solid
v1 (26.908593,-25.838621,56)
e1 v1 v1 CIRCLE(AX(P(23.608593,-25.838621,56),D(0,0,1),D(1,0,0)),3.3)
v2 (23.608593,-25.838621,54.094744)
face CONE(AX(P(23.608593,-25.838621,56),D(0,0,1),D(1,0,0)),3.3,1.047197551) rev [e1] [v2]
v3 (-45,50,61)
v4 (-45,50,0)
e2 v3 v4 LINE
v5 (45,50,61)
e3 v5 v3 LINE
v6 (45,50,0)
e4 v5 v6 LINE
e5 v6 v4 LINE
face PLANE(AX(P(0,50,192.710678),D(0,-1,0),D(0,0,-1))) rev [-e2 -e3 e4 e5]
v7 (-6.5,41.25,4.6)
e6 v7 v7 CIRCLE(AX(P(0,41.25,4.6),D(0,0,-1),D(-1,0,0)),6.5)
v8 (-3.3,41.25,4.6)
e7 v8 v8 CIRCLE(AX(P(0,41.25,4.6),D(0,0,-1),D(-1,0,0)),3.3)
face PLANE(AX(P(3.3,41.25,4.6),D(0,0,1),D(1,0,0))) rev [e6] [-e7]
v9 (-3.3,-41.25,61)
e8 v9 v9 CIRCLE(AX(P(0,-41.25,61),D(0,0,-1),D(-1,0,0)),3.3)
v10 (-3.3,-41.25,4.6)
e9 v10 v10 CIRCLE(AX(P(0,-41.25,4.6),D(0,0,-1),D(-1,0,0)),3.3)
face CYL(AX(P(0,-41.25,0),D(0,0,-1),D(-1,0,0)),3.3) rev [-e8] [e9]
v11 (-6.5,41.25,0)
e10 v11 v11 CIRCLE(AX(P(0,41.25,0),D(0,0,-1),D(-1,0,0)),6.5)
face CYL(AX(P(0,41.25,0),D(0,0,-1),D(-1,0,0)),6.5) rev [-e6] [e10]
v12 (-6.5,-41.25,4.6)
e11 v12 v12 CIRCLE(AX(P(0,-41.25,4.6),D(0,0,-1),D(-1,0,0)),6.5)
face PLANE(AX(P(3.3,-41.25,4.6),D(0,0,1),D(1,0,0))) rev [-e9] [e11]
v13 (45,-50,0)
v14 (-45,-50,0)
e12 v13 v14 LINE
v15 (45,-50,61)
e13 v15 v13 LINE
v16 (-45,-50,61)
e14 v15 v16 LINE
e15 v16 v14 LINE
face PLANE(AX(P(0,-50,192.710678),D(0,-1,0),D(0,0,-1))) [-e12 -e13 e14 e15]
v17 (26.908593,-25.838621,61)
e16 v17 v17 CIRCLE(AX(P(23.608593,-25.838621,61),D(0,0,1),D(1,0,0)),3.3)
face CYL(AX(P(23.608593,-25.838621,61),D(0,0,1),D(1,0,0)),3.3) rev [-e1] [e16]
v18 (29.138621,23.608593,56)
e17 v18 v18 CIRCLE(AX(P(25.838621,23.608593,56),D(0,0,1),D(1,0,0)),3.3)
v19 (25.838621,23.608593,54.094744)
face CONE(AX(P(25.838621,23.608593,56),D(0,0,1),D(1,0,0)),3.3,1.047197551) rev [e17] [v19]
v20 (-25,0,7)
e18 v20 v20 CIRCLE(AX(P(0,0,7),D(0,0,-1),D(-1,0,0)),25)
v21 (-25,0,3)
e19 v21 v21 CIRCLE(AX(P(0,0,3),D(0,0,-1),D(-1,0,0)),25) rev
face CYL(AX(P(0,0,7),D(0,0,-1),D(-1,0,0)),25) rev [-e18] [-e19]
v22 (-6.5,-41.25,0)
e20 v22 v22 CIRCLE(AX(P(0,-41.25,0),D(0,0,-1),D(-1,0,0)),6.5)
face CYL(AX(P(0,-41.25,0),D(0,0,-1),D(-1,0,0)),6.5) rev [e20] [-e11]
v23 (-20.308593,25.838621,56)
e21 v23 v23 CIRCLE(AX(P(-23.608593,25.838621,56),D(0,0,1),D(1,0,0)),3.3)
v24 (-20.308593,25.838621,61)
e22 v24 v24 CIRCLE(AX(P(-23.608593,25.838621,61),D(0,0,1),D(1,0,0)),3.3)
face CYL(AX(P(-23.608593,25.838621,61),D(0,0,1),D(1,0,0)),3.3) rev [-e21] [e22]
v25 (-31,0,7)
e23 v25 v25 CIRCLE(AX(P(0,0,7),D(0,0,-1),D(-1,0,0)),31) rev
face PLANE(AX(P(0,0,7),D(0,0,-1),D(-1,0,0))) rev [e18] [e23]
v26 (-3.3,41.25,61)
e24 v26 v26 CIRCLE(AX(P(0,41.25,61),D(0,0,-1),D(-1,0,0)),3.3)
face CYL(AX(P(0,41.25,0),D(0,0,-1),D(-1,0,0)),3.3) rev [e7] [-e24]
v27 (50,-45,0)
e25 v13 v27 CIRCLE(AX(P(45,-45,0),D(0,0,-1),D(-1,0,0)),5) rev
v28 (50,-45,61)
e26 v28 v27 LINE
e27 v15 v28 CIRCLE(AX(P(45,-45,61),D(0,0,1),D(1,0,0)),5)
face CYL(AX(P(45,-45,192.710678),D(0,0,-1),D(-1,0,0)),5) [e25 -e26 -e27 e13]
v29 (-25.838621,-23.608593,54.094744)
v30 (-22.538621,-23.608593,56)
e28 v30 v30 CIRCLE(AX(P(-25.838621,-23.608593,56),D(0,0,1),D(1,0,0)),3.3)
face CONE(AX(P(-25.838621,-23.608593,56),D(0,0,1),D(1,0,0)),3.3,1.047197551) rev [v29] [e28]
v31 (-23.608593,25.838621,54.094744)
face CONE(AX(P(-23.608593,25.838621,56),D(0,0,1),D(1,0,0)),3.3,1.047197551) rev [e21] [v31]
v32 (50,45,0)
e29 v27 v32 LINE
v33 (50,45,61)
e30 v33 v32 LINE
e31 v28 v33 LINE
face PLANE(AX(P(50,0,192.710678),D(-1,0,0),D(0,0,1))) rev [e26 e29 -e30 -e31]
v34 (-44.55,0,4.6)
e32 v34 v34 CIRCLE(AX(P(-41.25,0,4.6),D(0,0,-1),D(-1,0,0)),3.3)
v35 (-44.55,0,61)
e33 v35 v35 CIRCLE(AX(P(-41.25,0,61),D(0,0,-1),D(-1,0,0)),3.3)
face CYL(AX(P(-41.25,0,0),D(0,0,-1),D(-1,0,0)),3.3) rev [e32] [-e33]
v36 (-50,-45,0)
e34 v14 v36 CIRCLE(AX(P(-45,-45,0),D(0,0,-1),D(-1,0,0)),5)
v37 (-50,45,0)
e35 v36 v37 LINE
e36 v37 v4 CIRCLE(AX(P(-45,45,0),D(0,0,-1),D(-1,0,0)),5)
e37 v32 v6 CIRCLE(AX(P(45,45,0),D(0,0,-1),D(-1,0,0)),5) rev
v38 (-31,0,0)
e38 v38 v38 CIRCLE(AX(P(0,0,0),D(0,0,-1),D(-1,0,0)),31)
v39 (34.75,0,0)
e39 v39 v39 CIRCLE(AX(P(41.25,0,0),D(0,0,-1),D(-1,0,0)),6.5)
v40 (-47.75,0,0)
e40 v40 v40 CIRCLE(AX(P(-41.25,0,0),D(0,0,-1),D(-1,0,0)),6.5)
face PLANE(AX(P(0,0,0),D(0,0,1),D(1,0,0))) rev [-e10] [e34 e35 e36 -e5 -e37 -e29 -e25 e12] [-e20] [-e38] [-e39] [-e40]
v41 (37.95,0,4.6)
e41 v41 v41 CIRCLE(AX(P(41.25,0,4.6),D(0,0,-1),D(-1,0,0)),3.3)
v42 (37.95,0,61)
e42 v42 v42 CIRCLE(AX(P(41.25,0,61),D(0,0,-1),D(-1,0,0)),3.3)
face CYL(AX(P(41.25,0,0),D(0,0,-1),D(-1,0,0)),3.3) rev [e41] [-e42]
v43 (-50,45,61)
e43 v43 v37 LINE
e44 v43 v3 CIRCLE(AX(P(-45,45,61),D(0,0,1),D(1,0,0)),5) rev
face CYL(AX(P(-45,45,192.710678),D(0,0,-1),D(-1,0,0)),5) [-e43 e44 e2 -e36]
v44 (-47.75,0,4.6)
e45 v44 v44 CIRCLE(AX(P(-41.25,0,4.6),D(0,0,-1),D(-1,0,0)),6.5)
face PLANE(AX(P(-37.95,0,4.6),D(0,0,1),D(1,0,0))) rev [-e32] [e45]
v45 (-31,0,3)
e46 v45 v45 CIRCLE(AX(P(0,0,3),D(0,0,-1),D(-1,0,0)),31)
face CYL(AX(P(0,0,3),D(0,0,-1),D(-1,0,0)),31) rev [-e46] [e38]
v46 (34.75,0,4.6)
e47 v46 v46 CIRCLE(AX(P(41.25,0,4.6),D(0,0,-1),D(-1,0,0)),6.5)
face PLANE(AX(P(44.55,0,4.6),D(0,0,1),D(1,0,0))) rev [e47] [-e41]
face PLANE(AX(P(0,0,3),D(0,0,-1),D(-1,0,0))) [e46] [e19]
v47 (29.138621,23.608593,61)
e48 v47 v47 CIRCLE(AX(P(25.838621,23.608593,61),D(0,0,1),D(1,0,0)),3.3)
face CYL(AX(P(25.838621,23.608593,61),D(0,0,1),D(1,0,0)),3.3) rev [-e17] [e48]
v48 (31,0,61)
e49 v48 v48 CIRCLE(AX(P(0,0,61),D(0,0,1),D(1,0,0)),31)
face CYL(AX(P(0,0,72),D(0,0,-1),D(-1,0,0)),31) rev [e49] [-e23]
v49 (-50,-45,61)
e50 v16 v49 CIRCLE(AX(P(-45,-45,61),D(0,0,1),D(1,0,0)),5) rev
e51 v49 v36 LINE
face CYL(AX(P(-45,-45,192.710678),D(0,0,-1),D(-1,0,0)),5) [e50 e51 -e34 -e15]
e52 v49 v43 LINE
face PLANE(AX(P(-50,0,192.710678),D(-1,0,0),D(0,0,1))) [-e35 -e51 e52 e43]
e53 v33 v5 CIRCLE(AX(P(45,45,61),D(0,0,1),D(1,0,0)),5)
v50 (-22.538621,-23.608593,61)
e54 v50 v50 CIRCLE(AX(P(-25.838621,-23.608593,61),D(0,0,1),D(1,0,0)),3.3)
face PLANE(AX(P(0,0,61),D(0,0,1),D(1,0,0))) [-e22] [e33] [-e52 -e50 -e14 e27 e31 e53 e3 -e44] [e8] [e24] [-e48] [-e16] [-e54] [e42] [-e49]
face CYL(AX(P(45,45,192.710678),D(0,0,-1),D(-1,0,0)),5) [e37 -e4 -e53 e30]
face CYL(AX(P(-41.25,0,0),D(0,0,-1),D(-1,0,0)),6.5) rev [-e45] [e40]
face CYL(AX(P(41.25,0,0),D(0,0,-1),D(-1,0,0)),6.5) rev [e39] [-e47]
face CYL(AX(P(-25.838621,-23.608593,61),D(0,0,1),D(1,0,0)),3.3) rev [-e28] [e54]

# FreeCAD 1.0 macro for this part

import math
import FreeCAD as App
import Part
import Sketcher

V = App.Vector

doc = App.newDocument("Part")
body = doc.addObject("PartDesign::Body", "Body")

# Sketch on XY plane
sketch1 = body.newObject("Sketcher::SketchObject", "Sketch")
sketch1.AttachmentSupport = (doc.getObject("XY_Plane"), [""])
sketch1.MapMode = "FlatFace"
sketch1.addGeometry(Part.Circle(V(0, 0, 0), V(0, 0, 1), 50), False)
sketch1.addConstraint(Sketcher.Constraint("Coincident", 0, 3, -1, 1))
sketch1.addConstraint(Sketcher.Constraint("Diameter", 0, 100.0))
pad1 = body.newObject("PartDesign::Pad", "Pad")
pad1.Profile = sketch1
pad1.Length = 61

# Sketch on XY plane
sketch2 = body.newObject("Sketcher::SketchObject", "Sketch001")
sketch2.AttachmentSupport = (doc.getObject("XY_Plane"), [""])
sketch2.MapMode = "FlatFace"
sketch2.addGeometry(Part.Circle(V(0, 0, 0), V(0, 0, 1), 31), False)
sketch2.addConstraint(Sketcher.Constraint("Coincident", 0, 3, -1, 1))
sketch2.addConstraint(Sketcher.Constraint("Diameter", 0, 62.0))
pocket1 = body.newObject("PartDesign::Pocket", "Pocket")
pocket1.Profile = sketch2
pocket1.Length = 72
pocket1.Reversed = True

# Sketch on XY plane
sketch3 = body.newObject("Sketcher::SketchObject", "Sketch002")
sketch3.AttachmentSupport = (doc.getObject("XY_Plane"), [""])
sketch3.MapMode = "FlatFace"
sketch3.addGeometry(Part.Circle(V(-41.25, 0, 0), V(0, 0, 1), 3.3), False)
sketch3.addGeometry(Part.Circle(V(0, 41.25, 0), V(0, 0, 1), 3.3), False)
sketch3.addGeometry(Part.Circle(V(41.25, 0, 0), V(0, 0, 1), 3.3), False)
sketch3.addGeometry(Part.Circle(V(0, -41.25, 0), V(0, 0, 1), 3.3), False)
sketch3.addConstraint(Sketcher.Constraint("Equal", 0, 1))
sketch3.addConstraint(Sketcher.Constraint("Equal", 1, 2))
sketch3.addConstraint(Sketcher.Constraint("Equal", 2, 3))
sketch3.addConstraint(Sketcher.Constraint("Symmetric", 0, 3, 2, 3, -1, 1))
sketch3.addConstraint(Sketcher.Constraint("Symmetric", 1, 3, 3, 3, -1, 1))
sketch3.addConstraint(Sketcher.Constraint("PointOnObject", 0, 3, -1))
sketch3.addConstraint(Sketcher.Constraint("PointOnObject", 1, 3, -2))
sketch3.addConstraint(Sketcher.Constraint("Diameter", 0, 6.6))
sketch3.addConstraint(Sketcher.Constraint("DistanceX", 0, 3, 2, 3, 82.5))
sketch3.addConstraint(Sketcher.Constraint("DistanceY", 3, 3, 1, 3, 82.5))
doc.recompute()
hole = body.newObject("PartDesign::Hole", "Hole")
hole.Profile = sketch3
hole.ThreadType = "None"
hole.Diameter = 6.6
hole.DepthType = "ThroughAll"
hole.HoleCutType = "Counterbore"
hole.HoleCutDiameter = 13
hole.HoleCutDepth = 4.6
hole.Reversed = True

# Sketch on XY plane
sketch4 = body.newObject("Sketcher::SketchObject", "Sketch003")
sketch4.AttachmentSupport = (doc.getObject("XY_Plane"), [""])
sketch4.MapMode = "FlatFace"
sketch4.AttachmentOffset = App.Placement(V(0, 0, 61), App.Rotation())
sketch4.addGeometry(Part.Circle(V(-23.608593, 25.838621, 0), V(0, 0, 1), 3.3), False)
sketch4.addGeometry(Part.Circle(V(-25.838621, -23.608593, 0), V(0, 0, 1), 3.3), False)
sketch4.addGeometry(Part.Circle(V(23.608593, -25.838621, 0), V(0, 0, 1), 3.3), False)
sketch4.addGeometry(Part.Circle(V(25.838621, 23.608593, 0), V(0, 0, 1), 3.3), False)
sketch4.addConstraint(Sketcher.Constraint("Equal", 0, 1))
sketch4.addConstraint(Sketcher.Constraint("Equal", 1, 2))
sketch4.addConstraint(Sketcher.Constraint("Equal", 2, 3))
sketch4.addConstraint(Sketcher.Constraint("Symmetric", 0, 3, 2, 3, -1, 1))
sketch4.addConstraint(Sketcher.Constraint("Symmetric", 1, 3, 3, 3, -1, 1))
sketch4.addConstraint(Sketcher.Constraint("Diameter", 0, 6.6))
sketch4.addConstraint(Sketcher.Constraint("DistanceY", -1, 1, 0, 3, 25.838621))
sketch4.addConstraint(Sketcher.Constraint("DistanceX", 1, 3, -1, 1, 25.838621))
sketch4.addConstraint(Sketcher.Constraint("DistanceX", 1, 3, 0, 3, 2.230028))
sketch4.addConstraint(Sketcher.Constraint("DistanceY", 2, 3, 1, 3, 2.230028))
doc.recompute()
hole2 = body.newObject("PartDesign::Hole", "Hole001")
hole2.Profile = sketch4
hole2.ThreadType = "None"
hole2.Diameter = 6.6
hole2.DepthType = "Dimension"
hole2.Depth = 5
hole2.DrillPoint = "Angled"
hole2.DrillPointAngle = 120

# Sketch on XY plane
sketch5 = body.newObject("Sketcher::SketchObject", "Sketch004")
sketch5.AttachmentSupport = (doc.getObject("XY_Plane"), [""])
sketch5.MapMode = "FlatFace"
sketch5.AttachmentOffset = App.Placement(V(0, 0, 61), App.Rotation())
sketch5.addGeometry(Part.ArcOfCircle(Part.Circle(V(45, -45, 0), V(0, 0, 1), 5), math.radians(-90), math.radians(0)), False)
sketch5.addGeometry(Part.LineSegment(V(45, -50, 0), V(0, -50, 0)), False)
sketch5.addGeometry(Part.ArcOfCircle(Part.Circle(V(0, 0, 0), V(0, 0, 1), 50), math.radians(-90), math.radians(0)), False)
sketch5.addGeometry(Part.LineSegment(V(50, 0, 0), V(50, -45, 0)), False)
sketch5.addGeometry(Part.ArcOfCircle(Part.Circle(V(0, 0, 0), V(0, 0, 1), 50), math.radians(-180), math.radians(-90)), False)
sketch5.addGeometry(Part.LineSegment(V(0, -50, 0), V(-45, -50, 0)), False)
sketch5.addGeometry(Part.ArcOfCircle(Part.Circle(V(-45, -45, 0), V(0, 0, 1), 5), math.radians(180), math.radians(270)), False)
sketch5.addGeometry(Part.LineSegment(V(-50, -45, 0), V(-50, 0, 0)), False)
sketch5.addGeometry(Part.LineSegment(V(50, 45, 0), V(50, 0, 0)), False)
sketch5.addGeometry(Part.ArcOfCircle(Part.Circle(V(0, 0, 0), V(0, 0, 1), 50), math.radians(0), math.radians(90)), False)
sketch5.addGeometry(Part.LineSegment(V(0, 50, 0), V(45, 50, 0)), False)
sketch5.addGeometry(Part.ArcOfCircle(Part.Circle(V(45, 45, 0), V(0, 0, 1), 5), math.radians(0), math.radians(90)), False)
sketch5.addGeometry(Part.ArcOfCircle(Part.Circle(V(0, 0, 0), V(0, 0, 1), 50), math.radians(90), math.radians(180)), False)
sketch5.addGeometry(Part.LineSegment(V(-50, 0, 0), V(-50, 45, 0)), False)
sketch5.addGeometry(Part.ArcOfCircle(Part.Circle(V(-45, 45, 0), V(0, 0, 1), 5), math.radians(90), math.radians(180)), False)
sketch5.addGeometry(Part.LineSegment(V(-45, 50, 0), V(0, 50, 0)), False)
sketch5.addConstraint(Sketcher.Constraint("Tangent", 0, 1, 1, 1))
sketch5.addConstraint(Sketcher.Constraint("Tangent", 1, 2, 2, 1))
sketch5.addConstraint(Sketcher.Constraint("Tangent", 2, 2, 3, 1))
sketch5.addConstraint(Sketcher.Constraint("Tangent", 3, 2, 0, 2))
sketch5.addConstraint(Sketcher.Constraint("Tangent", 4, 2, 5, 1))
sketch5.addConstraint(Sketcher.Constraint("Tangent", 5, 2, 6, 2))
sketch5.addConstraint(Sketcher.Constraint("Tangent", 6, 1, 7, 1))
sketch5.addConstraint(Sketcher.Constraint("Tangent", 7, 2, 4, 1))
sketch5.addConstraint(Sketcher.Constraint("Tangent", 8, 2, 9, 1))
sketch5.addConstraint(Sketcher.Constraint("Tangent", 9, 2, 10, 1))
sketch5.addConstraint(Sketcher.Constraint("Tangent", 10, 2, 11, 2))
sketch5.addConstraint(Sketcher.Constraint("Tangent", 11, 1, 8, 1))
sketch5.addConstraint(Sketcher.Constraint("Tangent", 12, 2, 13, 1))
sketch5.addConstraint(Sketcher.Constraint("Tangent", 13, 2, 14, 2))
sketch5.addConstraint(Sketcher.Constraint("Tangent", 14, 1, 15, 1))
sketch5.addConstraint(Sketcher.Constraint("Tangent", 15, 2, 12, 1))
sketch5.addConstraint(Sketcher.Constraint("Horizontal", 1))
sketch5.addConstraint(Sketcher.Constraint("Vertical", 3))
sketch5.addConstraint(Sketcher.Constraint("Horizontal", 5))
sketch5.addConstraint(Sketcher.Constraint("Vertical", 7))
sketch5.addConstraint(Sketcher.Constraint("Vertical", 8))
sketch5.addConstraint(Sketcher.Constraint("Horizontal", 10))
sketch5.addConstraint(Sketcher.Constraint("Vertical", 13))
sketch5.addConstraint(Sketcher.Constraint("Horizontal", 15))
sketch5.addConstraint(Sketcher.Constraint("Coincident", 2, 3, -1, 1))
sketch5.addConstraint(Sketcher.Constraint("Coincident", 4, 3, -1, 1))
sketch5.addConstraint(Sketcher.Constraint("Coincident", 9, 3, -1, 1))
sketch5.addConstraint(Sketcher.Constraint("Coincident", 12, 3, -1, 1))
sketch5.addConstraint(Sketcher.Constraint("Equal", 2, 4))
sketch5.addConstraint(Sketcher.Constraint("Equal", 0, 6))
sketch5.addConstraint(Sketcher.Constraint("Equal", 4, 9))
sketch5.addConstraint(Sketcher.Constraint("Equal", 6, 11))
sketch5.addConstraint(Sketcher.Constraint("Equal", 9, 12))
sketch5.addConstraint(Sketcher.Constraint("Equal", 11, 14))
sketch5.addConstraint(Sketcher.Constraint("Radius", 0, 5.0))
sketch5.addConstraint(Sketcher.Constraint("Radius", 2, 50.0))
pad2 = body.newObject("PartDesign::Pad", "Pad001")
pad2.Profile = sketch5
pad2.Length = 61
pad2.Reversed = True

# Sketch on XY plane
sketch6 = body.newObject("Sketcher::SketchObject", "Sketch005")
sketch6.AttachmentSupport = (doc.getObject("XY_Plane"), [""])
sketch6.MapMode = "FlatFace"
sketch6.addGeometry(Part.Circle(V(0, 0, 0), V(0, 0, 1), 31), False)
sketch6.addGeometry(Part.Circle(V(0, 0, 0), V(0, 0, 1), 25), False)
sketch6.addConstraint(Sketcher.Constraint("Coincident", 0, 3, -1, 1))
sketch6.addConstraint(Sketcher.Constraint("Coincident", 1, 3, -1, 1))
sketch6.addConstraint(Sketcher.Constraint("Diameter", 0, 62.0))
sketch6.addConstraint(Sketcher.Constraint("Diameter", 1, 50.0))
pad3 = body.newObject("PartDesign::Pad", "Pad002")
pad3.Profile = sketch6
pad3.Length = 7

# Sketch on XY plane
sketch7 = body.newObject("Sketcher::SketchObject", "Sketch006")
sketch7.AttachmentSupport = (doc.getObject("XY_Plane"), [""])
sketch7.MapMode = "FlatFace"
sketch7.addGeometry(Part.Circle(V(0, 0, 0), V(0, 0, 1), 31), False)
sketch7.addConstraint(Sketcher.Constraint("Coincident", 0, 3, -1, 1))
sketch7.addConstraint(Sketcher.Constraint("Diameter", 0, 62.0))
pocket2 = body.newObject("PartDesign::Pocket", "Pocket001")
pocket2.Profile = sketch7
pocket2.Length = 3
pocket2.Reversed = True

doc.recompute()
